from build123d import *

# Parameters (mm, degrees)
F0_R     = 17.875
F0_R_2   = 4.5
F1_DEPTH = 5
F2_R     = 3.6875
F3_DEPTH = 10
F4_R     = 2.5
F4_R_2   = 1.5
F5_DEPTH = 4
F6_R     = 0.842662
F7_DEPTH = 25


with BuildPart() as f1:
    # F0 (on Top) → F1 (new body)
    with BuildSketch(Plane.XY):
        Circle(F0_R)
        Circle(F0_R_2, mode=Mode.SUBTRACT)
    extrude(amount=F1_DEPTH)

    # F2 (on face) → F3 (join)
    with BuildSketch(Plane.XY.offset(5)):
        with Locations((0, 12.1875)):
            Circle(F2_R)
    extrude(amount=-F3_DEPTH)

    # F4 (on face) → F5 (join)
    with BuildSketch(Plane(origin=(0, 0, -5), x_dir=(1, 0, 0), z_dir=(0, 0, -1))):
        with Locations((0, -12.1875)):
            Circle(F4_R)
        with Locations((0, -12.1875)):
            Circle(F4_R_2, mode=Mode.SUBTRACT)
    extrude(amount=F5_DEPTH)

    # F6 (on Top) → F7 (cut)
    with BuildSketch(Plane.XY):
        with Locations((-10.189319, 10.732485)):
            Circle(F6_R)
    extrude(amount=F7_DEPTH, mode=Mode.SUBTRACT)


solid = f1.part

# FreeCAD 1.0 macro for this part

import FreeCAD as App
import Part
import Sketcher
from FreeCAD import Vector

doc = App.newDocument("Part")
params = doc.addObject("Spreadsheet::Sheet", "Params")
for row, (alias, value) in enumerate([
    ("sketch1_diameter", "9 mm"),
    ("sketch1_diameter2", "35.75 mm"),
    ("pad1_length", "5 mm"),
    ("pad2_length", "10 mm"),
    ("sketch3_diameter", "5 mm"),
    ("sketch3_diameter2", "3 mm"),
    ("pad3_length", "4 mm"),
    ("pocket1_length", "25 mm"),
], start=1):
    params.set(f"A{row}", alias)
    params.set(f"B{row}", "=" + value)
    params.setAlias(f"B{row}", alias)

body = doc.addObject("PartDesign::Body", "Body")

# Sketch on XY plane
sketch1 = doc.addObject("Sketcher::SketchObject", "Sketch")
body.addObject(sketch1)
sketch1.AttachmentSupport = (doc.XY_Plane, [""])
sketch1.MapMode = "FlatFace"
sketch1.addGeometry([
    Part.Circle(Vector(0, 0, 0), Vector(0, 0, 1), 17.9),
    Part.Circle(Vector(0, 0, 0), Vector(0, 0, 1), 4.5),
], False)
sketch1.addConstraint([
    Sketcher.Constraint("Coincident", 0, 3, -1, 1),
    Sketcher.Constraint("Coincident", 1, 3, -1, 1),
    Sketcher.Constraint("Diameter", 1, 9.0),
    Sketcher.Constraint("Diameter", 0, 35.75),
])
sketch1.setExpression("Constraints[2]", "Params.sketch1_diameter")
sketch1.setExpression("Constraints[3]", "Params.sketch1_diameter2")
pad1 = doc.addObject("PartDesign::Pad", "Pad")
body.addObject(pad1)
pad1.Profile = sketch1
pad1.setExpression("Length", "Params.pad1_length")

# Sketch on XY plane
sketch2 = doc.addObject("Sketcher::SketchObject", "Sketch001")
body.addObject(sketch2)
sketch2.AttachmentSupport = (doc.XY_Plane, [""])
sketch2.MapMode = "FlatFace"
sketch2.AttachmentOffset = App.Placement(Vector(0, 0, 5), App.Rotation())
sketch2.addGeometry(Part.Circle(Vector(0, 12.2, 0), Vector(0, 0, 1), 3.7), False)
sketch2.addConstraint([
    Sketcher.Constraint("PointOnObject", 0, 3, -2),
    Sketcher.Constraint("Diameter", 0, 7.375),
    Sketcher.Constraint("DistanceY", -1, 1, 0, 3, 12.1875),
])
pad2 = doc.addObject("PartDesign::Pad", "Pad001")
body.addObject(pad2)
pad2.Profile = sketch2
pad2.setExpression("Length", "Params.pad2_length")
pad2.Reversed = True

# Sketch on XY plane
sketch3 = doc.addObject("Sketcher::SketchObject", "Sketch002")
body.addObject(sketch3)
sketch3.AttachmentSupport = (doc.XY_Plane, [""])
sketch3.MapMode = "FlatFace"
sketch3.AttachmentOffset = App.Placement(Vector(0, 0, -5), App.Rotation())
sketch3.addGeometry([
    Part.Circle(Vector(0, 12.2, 0), Vector(0, 0, 1), 2.5),
    Part.Circle(Vector(0, 12.2, 0), Vector(0, 0, 1), 1.5),
], False)
sketch3.addConstraint([
    Sketcher.Constraint("Coincident", 1, 3, 0, 3),
    Sketcher.Constraint("PointOnObject", 0, 3, -2),
    Sketcher.Constraint("Diameter", 0, 5.0),
    Sketcher.Constraint("Diameter", 1, 3.0),
    Sketcher.Constraint("DistanceY", -1, 1, 0, 3, 12.1875),
])
sketch3.setExpression("Constraints[2]", "Params.sketch3_diameter")
sketch3.setExpression("Constraints[3]", "Params.sketch3_diameter2")
pad3 = doc.addObject("PartDesign::Pad", "Pad002")
body.addObject(pad3)
pad3.Profile = sketch3
pad3.setExpression("Length", "Params.pad3_length")
pad3.Reversed = True

# Sketch on XY plane
sketch4 = doc.addObject("Sketcher::SketchObject", "Sketch003")
body.addObject(sketch4)
sketch4.AttachmentSupport = (doc.XY_Plane, [""])
sketch4.MapMode = "FlatFace"
sketch4.addGeometry(Part.Circle(Vector(-10.2, 10.7, 0), Vector(0, 0, 1), 0.8), False)
sketch4.addConstraint([
    Sketcher.Constraint("Diameter", 0, 1.685324),
    Sketcher.Constraint("DistanceX", 0, 3, -1, 1, 10.189319),
    Sketcher.Constraint("DistanceY", -1, 1, 0, 3, 10.732485),
])
pocket1 = doc.addObject("PartDesign::Pocket", "Pocket")
body.addObject(pocket1)
pocket1.Profile = sketch4
pocket1.setExpression("Length", "Params.pocket1_length")
pocket1.Reversed = True

doc.recompute()
